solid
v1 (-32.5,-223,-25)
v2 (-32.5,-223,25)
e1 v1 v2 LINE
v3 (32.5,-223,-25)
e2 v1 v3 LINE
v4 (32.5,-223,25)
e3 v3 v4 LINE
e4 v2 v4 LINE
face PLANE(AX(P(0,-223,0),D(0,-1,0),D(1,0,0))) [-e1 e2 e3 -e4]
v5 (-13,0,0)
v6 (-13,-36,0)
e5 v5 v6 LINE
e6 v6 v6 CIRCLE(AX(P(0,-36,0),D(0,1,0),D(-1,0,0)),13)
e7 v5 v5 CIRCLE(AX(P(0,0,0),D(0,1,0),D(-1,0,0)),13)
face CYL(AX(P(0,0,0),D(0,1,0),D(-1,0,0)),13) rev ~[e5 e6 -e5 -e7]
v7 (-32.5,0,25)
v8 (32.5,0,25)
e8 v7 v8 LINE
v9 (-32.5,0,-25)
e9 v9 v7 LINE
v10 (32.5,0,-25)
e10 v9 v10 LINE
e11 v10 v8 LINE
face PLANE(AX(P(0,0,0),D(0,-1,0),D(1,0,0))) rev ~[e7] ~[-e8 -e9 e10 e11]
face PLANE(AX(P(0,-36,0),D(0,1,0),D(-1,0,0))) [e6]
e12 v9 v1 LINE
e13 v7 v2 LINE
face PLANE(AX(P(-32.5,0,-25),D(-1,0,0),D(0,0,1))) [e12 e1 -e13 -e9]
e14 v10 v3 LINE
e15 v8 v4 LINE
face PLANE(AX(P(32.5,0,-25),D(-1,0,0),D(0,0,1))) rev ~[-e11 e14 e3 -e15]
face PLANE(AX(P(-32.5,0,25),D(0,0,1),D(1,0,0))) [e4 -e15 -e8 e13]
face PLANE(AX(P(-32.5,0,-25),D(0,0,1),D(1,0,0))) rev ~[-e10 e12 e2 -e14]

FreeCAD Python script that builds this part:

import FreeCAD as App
import Part
import Sketcher

V = App.Vector


def add_polygon(sketch, points):
    """Adds a closed chain of lines whose ends are joined by coincident constraints."""
    first, n = sketch.GeometryCount, len(points)
    for a, b in zip(points, points[1:] + points[:1]):
        sketch.addGeometry(Part.LineSegment(App.Vector(*a, 0), App.Vector(*b, 0)), False)
    for i in range(n):
        sketch.addConstraint(Sketcher.Constraint("Coincident", first + i, 2, first + (i + 1) % n, 1))

doc = App.newDocument("Part")
body = doc.addObject("PartDesign::Body", "Body")

# Sketch on XZ plane
sketch1 = body.newObject("Sketcher::SketchObject", "Sketch")
sketch1.AttachmentSupport = (doc.getObject("XZ_Plane"), [""])
sketch1.MapMode = "FlatFace"
add_polygon(sketch1, [(-32, 25), (-32, -25), (32, -25), (32, 25)])  # lines 0-3
sketch1.addConstraint(Sketcher.Constraint("Vertical", 0))
sketch1.addConstraint(Sketcher.Constraint("Horizontal", 1))
sketch1.addConstraint(Sketcher.Constraint("Vertical", 2))
sketch1.addConstraint(Sketcher.Constraint("Horizontal", 3))
sketch1.addConstraint(Sketcher.Constraint("Symmetric", 0, 2, 2, 2, -1, 1))
sketch1.addConstraint(Sketcher.Constraint("DistanceX", 1, 1, 1, 2, 65.0))
sketch1.addConstraint(Sketcher.Constraint("DistanceY", 0, 2, 0, 1, 50.0))
pad1 = body.newObject("PartDesign::Pad", "Pad")
pad1.Profile = sketch1
pad1.Length = 223

# Sketch on XZ plane
sketch2 = body.newObject("Sketcher::SketchObject", "Sketch001")
sketch2.AttachmentSupport = (doc.getObject("XZ_Plane"), [""])
sketch2.MapMode = "FlatFace"
sketch2.addGeometry(Part.Circle(V(0, 0, 0), V(0, 0, 1), 13), False)
sketch2.addConstraint(Sketcher.Constraint("Coincident", 0, 3, -1, 1))
sketch2.addConstraint(Sketcher.Constraint("Diameter", 0, 26.0))
pocket1 = body.newObject("PartDesign::Pocket", "Pocket")
pocket1.Profile = sketch2
pocket1.Length = 36
pocket1.Reversed = True

doc.recompute()
